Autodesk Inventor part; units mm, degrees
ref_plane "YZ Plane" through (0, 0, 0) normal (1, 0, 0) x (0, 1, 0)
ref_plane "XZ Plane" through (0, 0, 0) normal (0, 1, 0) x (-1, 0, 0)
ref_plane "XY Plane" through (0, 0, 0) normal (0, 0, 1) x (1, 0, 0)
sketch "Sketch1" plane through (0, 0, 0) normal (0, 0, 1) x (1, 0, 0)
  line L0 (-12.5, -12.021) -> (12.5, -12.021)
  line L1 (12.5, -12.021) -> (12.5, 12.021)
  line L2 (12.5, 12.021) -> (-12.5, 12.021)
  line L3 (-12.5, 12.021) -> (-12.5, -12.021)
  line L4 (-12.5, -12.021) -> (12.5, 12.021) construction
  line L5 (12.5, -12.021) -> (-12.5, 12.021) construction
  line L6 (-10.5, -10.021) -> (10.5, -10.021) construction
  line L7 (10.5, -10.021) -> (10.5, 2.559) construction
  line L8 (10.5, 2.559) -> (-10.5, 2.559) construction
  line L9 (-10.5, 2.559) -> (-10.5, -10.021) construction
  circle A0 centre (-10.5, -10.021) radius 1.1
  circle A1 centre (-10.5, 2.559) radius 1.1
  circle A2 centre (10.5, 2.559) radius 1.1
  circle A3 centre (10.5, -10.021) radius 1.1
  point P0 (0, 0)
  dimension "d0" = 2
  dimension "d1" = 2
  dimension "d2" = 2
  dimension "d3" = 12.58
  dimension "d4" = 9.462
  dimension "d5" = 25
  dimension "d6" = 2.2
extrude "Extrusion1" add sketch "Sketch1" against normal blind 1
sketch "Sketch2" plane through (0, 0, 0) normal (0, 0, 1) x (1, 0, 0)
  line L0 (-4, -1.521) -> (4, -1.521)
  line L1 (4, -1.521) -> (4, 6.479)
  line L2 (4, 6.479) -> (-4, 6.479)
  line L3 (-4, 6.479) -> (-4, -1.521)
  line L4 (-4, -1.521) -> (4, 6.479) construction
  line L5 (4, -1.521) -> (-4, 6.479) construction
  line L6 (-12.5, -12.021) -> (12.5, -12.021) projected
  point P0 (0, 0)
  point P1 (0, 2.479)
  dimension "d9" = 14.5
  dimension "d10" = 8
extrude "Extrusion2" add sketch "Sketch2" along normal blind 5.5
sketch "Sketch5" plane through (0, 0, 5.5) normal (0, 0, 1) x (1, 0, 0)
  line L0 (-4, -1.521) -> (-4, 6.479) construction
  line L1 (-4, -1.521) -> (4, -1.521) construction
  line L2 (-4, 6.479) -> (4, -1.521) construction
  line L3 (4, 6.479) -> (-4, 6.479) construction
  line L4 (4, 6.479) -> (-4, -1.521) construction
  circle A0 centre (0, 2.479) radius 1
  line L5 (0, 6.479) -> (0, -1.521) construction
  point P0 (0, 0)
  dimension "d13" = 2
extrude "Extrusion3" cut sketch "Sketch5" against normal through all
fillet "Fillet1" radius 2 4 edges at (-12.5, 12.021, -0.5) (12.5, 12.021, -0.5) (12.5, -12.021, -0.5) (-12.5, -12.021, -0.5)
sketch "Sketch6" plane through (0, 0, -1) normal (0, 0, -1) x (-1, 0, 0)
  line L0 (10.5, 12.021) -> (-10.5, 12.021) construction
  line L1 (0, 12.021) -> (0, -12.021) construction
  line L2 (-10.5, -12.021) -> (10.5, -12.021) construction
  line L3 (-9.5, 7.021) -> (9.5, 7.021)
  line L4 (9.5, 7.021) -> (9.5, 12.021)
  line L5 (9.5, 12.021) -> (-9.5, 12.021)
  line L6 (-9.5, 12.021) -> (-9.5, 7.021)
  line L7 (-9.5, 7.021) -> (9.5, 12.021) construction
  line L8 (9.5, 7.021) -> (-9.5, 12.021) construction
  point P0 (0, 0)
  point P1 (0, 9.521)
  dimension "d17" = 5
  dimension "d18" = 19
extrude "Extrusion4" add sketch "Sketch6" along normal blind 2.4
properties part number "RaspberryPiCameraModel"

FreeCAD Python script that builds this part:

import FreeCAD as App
import Part
import Sketcher

V = App.Vector


def edges_at(feature, points):
    """Names of the edges that pass closest to the given points."""
    edges = feature.Shape.Edges
    near = lambda p: min(range(len(edges)), key=lambda i: edges[i].distToShape(Part.Vertex(*p))[0])
    return sorted({f"Edge{near(p) + 1}" for p in points})

doc = App.newDocument("Part")
body = doc.addObject("PartDesign::Body", "Body")

sketch1 = body.newObject("Sketcher::SketchObject", "Sketch")
sketch1.AttachmentSupport = (doc.getObject("XY_Plane"), [""])
sketch1.MapMode = "FlatFace"
sketch1.addGeometry([
    Part.LineSegment(V(-12.5, 12.021, 0), V(-12.5, -12.021, 0)),
    Part.LineSegment(V(-12.5, -12.021, 0), V(12.5, -12.021, 0)),
    Part.LineSegment(V(12.5, -12.021, 0), V(12.5, 12.021, 0)),
    Part.LineSegment(V(12.5, 12.021, 0), V(-12.5, 12.021, 0)),
    Part.Circle(V(-10.5, -10.021, 0), V(0, 0, 1), 1.1),
    Part.Circle(V(10.5, -10.021, 0), V(0, 0, 1), 1.1),
    Part.Circle(V(-10.5, 2.559, 0), V(0, 0, 1), 1.1),
    Part.Circle(V(10.5, 2.559, 0), V(0, 0, 1), 1.1),
], False)
sketch1.addConstraint([
    Sketcher.Constraint("Coincident", 0, 2, 1, 1),
    Sketcher.Constraint("Coincident", 1, 2, 2, 1),
    Sketcher.Constraint("Coincident", 2, 2, 3, 1),
    Sketcher.Constraint("Coincident", 3, 2, 0, 1),
    Sketcher.Constraint("Vertical", 0),
    Sketcher.Constraint("Horizontal", 1),
    Sketcher.Constraint("Vertical", 2),
    Sketcher.Constraint("Horizontal", 3),
    Sketcher.Constraint("Equal", 4, 5),
    Sketcher.Constraint("Equal", 5, 6),
    Sketcher.Constraint("Equal", 6, 7),
    Sketcher.Constraint("Symmetric", 0, 2, 2, 2, -1, 1),
    Sketcher.Constraint("Symmetric", 4, 3, 5, 3, -2),
    Sketcher.Constraint("Symmetric", 6, 3, 7, 3, -2),
    Sketcher.Constraint("Vertical", 4, 3, 6, 3),
    Sketcher.Constraint("Diameter", 4, 2.2),
    Sketcher.Constraint("DistanceX", 1, 1, 1, 2, 25.0),
    Sketcher.Constraint("DistanceX", 0, 2, 4, 3, 2.0),
    Sketcher.Constraint("DistanceY", 0, 2, 4, 3, 2.0),
    Sketcher.Constraint("DistanceY", 4, 3, 6, 3, 12.58),
    Sketcher.Constraint("DistanceY", 7, 3, 2, 2, 9.462),
])
pad1 = body.newObject("PartDesign::Pad", "Pad")
pad1.Profile = sketch1
pad1.Length = 1
pad1.Reversed = True

sketch2 = body.newObject("Sketcher::SketchObject", "Sketch001")
sketch2.AttachmentSupport = (doc.getObject("XY_Plane"), [""])
sketch2.MapMode = "FlatFace"
sketch2.addGeometry([
    Part.LineSegment(V(-4, 6.479, 0), V(-4, -1.521, 0)),
    Part.LineSegment(V(-4, -1.521, 0), V(4, -1.521, 0)),
    Part.LineSegment(V(4, -1.521, 0), V(4, 6.479, 0)),
    Part.LineSegment(V(4, 6.479, 0), V(-4, 6.479, 0)),
], False)
sketch2.addConstraint([
    Sketcher.Constraint("Coincident", 0, 2, 1, 1),
    Sketcher.Constraint("Coincident", 1, 2, 2, 1),
    Sketcher.Constraint("Coincident", 2, 2, 3, 1),
    Sketcher.Constraint("Coincident", 3, 2, 0, 1),
    Sketcher.Constraint("Vertical", 0),
    Sketcher.Constraint("Horizontal", 1),
    Sketcher.Constraint("Vertical", 2),
    Sketcher.Constraint("Horizontal", 3),
    Sketcher.Constraint("Equal", 3, 0),
    Sketcher.Constraint("DistanceX", 1, 1, 1, 2, 8.0),
    Sketcher.Constraint("DistanceX", 0, 2, -1, 1, 4.0),
    Sketcher.Constraint("DistanceY", 0, 2, -1, 1, 1.521),
])
pad2 = body.newObject("PartDesign::Pad", "Pad001")
pad2.Profile = sketch2
pad2.Length = 5.5

sketch3 = body.newObject("Sketcher::SketchObject", "Sketch002")
sketch3.AttachmentSupport = (doc.getObject("XY_Plane"), [""])
sketch3.MapMode = "FlatFace"
sketch3.AttachmentOffset = App.Placement(V(0, 0, 5.5), App.Rotation())
sketch3.addGeometry(Part.Circle(V(0, 2.479, 0), V(0, 0, 1), 1), False)
sketch3.addConstraint([
    Sketcher.Constraint("PointOnObject", 0, 3, -2),
    Sketcher.Constraint("Diameter", 0, 2.0),
    Sketcher.Constraint("DistanceY", -1, 1, 0, 3, 2.479),
])
pocket1 = body.newObject("PartDesign::Pocket", "Pocket")
pocket1.Profile = sketch3
pocket1.Type = "ThroughAll"
doc.recompute()

fillet = body.newObject("PartDesign::Fillet", "Fillet")
fillet.Base = (pocket1, edges_at(pocket1, [
    (-12.5, 12.021, -0.5),
    (12.5, 12.021, -0.5),
    (12.5, -12.021, -0.5),
    (-12.5, -12.021, -0.5),
]))
fillet.Radius = 2

sketch4 = body.newObject("Sketcher::SketchObject", "Sketch003")
sketch4.AttachmentSupport = (doc.getObject("XY_Plane"), [""])
sketch4.MapMode = "FlatFace"
sketch4.AttachmentOffset = App.Placement(V(0, 0, -1), App.Rotation())
sketch4.addGeometry([
    Part.LineSegment(V(9.5, 12.021, 0), V(9.5, 7.021, 0)),
    Part.LineSegment(V(9.5, 7.021, 0), V(-9.5, 7.021, 0)),
    Part.LineSegment(V(-9.5, 7.021, 0), V(-9.5, 12.021, 0)),
    Part.LineSegment(V(-9.5, 12.021, 0), V(9.5, 12.021, 0)),
], False)
sketch4.addConstraint([
    Sketcher.Constraint("Coincident", 0, 2, 1, 1),
    Sketcher.Constraint("Coincident", 1, 2, 2, 1),
    Sketcher.Constraint("Coincident", 2, 2, 3, 1),
    Sketcher.Constraint("Coincident", 3, 2, 0, 1),
    Sketcher.Constraint("Vertical", 0),
    Sketcher.Constraint("Horizontal", 1),
    Sketcher.Constraint("Vertical", 2),
    Sketcher.Constraint("Horizontal", 3),
    Sketcher.Constraint("DistanceX", 1, 2, 1, 1, 19.0),
    Sketcher.Constraint("DistanceY", 0, 2, 0, 1, 5.0),
    Sketcher.Constraint("DistanceX", -1, 1, 0, 2, 9.5),
    Sketcher.Constraint("DistanceY", -1, 1, 0, 2, 7.021),
])
pad3 = body.newObject("PartDesign::Pad", "Pad002")
pad3.Profile = sketch4
pad3.Length = 2.4
pad3.Reversed = True

doc.recompute()
